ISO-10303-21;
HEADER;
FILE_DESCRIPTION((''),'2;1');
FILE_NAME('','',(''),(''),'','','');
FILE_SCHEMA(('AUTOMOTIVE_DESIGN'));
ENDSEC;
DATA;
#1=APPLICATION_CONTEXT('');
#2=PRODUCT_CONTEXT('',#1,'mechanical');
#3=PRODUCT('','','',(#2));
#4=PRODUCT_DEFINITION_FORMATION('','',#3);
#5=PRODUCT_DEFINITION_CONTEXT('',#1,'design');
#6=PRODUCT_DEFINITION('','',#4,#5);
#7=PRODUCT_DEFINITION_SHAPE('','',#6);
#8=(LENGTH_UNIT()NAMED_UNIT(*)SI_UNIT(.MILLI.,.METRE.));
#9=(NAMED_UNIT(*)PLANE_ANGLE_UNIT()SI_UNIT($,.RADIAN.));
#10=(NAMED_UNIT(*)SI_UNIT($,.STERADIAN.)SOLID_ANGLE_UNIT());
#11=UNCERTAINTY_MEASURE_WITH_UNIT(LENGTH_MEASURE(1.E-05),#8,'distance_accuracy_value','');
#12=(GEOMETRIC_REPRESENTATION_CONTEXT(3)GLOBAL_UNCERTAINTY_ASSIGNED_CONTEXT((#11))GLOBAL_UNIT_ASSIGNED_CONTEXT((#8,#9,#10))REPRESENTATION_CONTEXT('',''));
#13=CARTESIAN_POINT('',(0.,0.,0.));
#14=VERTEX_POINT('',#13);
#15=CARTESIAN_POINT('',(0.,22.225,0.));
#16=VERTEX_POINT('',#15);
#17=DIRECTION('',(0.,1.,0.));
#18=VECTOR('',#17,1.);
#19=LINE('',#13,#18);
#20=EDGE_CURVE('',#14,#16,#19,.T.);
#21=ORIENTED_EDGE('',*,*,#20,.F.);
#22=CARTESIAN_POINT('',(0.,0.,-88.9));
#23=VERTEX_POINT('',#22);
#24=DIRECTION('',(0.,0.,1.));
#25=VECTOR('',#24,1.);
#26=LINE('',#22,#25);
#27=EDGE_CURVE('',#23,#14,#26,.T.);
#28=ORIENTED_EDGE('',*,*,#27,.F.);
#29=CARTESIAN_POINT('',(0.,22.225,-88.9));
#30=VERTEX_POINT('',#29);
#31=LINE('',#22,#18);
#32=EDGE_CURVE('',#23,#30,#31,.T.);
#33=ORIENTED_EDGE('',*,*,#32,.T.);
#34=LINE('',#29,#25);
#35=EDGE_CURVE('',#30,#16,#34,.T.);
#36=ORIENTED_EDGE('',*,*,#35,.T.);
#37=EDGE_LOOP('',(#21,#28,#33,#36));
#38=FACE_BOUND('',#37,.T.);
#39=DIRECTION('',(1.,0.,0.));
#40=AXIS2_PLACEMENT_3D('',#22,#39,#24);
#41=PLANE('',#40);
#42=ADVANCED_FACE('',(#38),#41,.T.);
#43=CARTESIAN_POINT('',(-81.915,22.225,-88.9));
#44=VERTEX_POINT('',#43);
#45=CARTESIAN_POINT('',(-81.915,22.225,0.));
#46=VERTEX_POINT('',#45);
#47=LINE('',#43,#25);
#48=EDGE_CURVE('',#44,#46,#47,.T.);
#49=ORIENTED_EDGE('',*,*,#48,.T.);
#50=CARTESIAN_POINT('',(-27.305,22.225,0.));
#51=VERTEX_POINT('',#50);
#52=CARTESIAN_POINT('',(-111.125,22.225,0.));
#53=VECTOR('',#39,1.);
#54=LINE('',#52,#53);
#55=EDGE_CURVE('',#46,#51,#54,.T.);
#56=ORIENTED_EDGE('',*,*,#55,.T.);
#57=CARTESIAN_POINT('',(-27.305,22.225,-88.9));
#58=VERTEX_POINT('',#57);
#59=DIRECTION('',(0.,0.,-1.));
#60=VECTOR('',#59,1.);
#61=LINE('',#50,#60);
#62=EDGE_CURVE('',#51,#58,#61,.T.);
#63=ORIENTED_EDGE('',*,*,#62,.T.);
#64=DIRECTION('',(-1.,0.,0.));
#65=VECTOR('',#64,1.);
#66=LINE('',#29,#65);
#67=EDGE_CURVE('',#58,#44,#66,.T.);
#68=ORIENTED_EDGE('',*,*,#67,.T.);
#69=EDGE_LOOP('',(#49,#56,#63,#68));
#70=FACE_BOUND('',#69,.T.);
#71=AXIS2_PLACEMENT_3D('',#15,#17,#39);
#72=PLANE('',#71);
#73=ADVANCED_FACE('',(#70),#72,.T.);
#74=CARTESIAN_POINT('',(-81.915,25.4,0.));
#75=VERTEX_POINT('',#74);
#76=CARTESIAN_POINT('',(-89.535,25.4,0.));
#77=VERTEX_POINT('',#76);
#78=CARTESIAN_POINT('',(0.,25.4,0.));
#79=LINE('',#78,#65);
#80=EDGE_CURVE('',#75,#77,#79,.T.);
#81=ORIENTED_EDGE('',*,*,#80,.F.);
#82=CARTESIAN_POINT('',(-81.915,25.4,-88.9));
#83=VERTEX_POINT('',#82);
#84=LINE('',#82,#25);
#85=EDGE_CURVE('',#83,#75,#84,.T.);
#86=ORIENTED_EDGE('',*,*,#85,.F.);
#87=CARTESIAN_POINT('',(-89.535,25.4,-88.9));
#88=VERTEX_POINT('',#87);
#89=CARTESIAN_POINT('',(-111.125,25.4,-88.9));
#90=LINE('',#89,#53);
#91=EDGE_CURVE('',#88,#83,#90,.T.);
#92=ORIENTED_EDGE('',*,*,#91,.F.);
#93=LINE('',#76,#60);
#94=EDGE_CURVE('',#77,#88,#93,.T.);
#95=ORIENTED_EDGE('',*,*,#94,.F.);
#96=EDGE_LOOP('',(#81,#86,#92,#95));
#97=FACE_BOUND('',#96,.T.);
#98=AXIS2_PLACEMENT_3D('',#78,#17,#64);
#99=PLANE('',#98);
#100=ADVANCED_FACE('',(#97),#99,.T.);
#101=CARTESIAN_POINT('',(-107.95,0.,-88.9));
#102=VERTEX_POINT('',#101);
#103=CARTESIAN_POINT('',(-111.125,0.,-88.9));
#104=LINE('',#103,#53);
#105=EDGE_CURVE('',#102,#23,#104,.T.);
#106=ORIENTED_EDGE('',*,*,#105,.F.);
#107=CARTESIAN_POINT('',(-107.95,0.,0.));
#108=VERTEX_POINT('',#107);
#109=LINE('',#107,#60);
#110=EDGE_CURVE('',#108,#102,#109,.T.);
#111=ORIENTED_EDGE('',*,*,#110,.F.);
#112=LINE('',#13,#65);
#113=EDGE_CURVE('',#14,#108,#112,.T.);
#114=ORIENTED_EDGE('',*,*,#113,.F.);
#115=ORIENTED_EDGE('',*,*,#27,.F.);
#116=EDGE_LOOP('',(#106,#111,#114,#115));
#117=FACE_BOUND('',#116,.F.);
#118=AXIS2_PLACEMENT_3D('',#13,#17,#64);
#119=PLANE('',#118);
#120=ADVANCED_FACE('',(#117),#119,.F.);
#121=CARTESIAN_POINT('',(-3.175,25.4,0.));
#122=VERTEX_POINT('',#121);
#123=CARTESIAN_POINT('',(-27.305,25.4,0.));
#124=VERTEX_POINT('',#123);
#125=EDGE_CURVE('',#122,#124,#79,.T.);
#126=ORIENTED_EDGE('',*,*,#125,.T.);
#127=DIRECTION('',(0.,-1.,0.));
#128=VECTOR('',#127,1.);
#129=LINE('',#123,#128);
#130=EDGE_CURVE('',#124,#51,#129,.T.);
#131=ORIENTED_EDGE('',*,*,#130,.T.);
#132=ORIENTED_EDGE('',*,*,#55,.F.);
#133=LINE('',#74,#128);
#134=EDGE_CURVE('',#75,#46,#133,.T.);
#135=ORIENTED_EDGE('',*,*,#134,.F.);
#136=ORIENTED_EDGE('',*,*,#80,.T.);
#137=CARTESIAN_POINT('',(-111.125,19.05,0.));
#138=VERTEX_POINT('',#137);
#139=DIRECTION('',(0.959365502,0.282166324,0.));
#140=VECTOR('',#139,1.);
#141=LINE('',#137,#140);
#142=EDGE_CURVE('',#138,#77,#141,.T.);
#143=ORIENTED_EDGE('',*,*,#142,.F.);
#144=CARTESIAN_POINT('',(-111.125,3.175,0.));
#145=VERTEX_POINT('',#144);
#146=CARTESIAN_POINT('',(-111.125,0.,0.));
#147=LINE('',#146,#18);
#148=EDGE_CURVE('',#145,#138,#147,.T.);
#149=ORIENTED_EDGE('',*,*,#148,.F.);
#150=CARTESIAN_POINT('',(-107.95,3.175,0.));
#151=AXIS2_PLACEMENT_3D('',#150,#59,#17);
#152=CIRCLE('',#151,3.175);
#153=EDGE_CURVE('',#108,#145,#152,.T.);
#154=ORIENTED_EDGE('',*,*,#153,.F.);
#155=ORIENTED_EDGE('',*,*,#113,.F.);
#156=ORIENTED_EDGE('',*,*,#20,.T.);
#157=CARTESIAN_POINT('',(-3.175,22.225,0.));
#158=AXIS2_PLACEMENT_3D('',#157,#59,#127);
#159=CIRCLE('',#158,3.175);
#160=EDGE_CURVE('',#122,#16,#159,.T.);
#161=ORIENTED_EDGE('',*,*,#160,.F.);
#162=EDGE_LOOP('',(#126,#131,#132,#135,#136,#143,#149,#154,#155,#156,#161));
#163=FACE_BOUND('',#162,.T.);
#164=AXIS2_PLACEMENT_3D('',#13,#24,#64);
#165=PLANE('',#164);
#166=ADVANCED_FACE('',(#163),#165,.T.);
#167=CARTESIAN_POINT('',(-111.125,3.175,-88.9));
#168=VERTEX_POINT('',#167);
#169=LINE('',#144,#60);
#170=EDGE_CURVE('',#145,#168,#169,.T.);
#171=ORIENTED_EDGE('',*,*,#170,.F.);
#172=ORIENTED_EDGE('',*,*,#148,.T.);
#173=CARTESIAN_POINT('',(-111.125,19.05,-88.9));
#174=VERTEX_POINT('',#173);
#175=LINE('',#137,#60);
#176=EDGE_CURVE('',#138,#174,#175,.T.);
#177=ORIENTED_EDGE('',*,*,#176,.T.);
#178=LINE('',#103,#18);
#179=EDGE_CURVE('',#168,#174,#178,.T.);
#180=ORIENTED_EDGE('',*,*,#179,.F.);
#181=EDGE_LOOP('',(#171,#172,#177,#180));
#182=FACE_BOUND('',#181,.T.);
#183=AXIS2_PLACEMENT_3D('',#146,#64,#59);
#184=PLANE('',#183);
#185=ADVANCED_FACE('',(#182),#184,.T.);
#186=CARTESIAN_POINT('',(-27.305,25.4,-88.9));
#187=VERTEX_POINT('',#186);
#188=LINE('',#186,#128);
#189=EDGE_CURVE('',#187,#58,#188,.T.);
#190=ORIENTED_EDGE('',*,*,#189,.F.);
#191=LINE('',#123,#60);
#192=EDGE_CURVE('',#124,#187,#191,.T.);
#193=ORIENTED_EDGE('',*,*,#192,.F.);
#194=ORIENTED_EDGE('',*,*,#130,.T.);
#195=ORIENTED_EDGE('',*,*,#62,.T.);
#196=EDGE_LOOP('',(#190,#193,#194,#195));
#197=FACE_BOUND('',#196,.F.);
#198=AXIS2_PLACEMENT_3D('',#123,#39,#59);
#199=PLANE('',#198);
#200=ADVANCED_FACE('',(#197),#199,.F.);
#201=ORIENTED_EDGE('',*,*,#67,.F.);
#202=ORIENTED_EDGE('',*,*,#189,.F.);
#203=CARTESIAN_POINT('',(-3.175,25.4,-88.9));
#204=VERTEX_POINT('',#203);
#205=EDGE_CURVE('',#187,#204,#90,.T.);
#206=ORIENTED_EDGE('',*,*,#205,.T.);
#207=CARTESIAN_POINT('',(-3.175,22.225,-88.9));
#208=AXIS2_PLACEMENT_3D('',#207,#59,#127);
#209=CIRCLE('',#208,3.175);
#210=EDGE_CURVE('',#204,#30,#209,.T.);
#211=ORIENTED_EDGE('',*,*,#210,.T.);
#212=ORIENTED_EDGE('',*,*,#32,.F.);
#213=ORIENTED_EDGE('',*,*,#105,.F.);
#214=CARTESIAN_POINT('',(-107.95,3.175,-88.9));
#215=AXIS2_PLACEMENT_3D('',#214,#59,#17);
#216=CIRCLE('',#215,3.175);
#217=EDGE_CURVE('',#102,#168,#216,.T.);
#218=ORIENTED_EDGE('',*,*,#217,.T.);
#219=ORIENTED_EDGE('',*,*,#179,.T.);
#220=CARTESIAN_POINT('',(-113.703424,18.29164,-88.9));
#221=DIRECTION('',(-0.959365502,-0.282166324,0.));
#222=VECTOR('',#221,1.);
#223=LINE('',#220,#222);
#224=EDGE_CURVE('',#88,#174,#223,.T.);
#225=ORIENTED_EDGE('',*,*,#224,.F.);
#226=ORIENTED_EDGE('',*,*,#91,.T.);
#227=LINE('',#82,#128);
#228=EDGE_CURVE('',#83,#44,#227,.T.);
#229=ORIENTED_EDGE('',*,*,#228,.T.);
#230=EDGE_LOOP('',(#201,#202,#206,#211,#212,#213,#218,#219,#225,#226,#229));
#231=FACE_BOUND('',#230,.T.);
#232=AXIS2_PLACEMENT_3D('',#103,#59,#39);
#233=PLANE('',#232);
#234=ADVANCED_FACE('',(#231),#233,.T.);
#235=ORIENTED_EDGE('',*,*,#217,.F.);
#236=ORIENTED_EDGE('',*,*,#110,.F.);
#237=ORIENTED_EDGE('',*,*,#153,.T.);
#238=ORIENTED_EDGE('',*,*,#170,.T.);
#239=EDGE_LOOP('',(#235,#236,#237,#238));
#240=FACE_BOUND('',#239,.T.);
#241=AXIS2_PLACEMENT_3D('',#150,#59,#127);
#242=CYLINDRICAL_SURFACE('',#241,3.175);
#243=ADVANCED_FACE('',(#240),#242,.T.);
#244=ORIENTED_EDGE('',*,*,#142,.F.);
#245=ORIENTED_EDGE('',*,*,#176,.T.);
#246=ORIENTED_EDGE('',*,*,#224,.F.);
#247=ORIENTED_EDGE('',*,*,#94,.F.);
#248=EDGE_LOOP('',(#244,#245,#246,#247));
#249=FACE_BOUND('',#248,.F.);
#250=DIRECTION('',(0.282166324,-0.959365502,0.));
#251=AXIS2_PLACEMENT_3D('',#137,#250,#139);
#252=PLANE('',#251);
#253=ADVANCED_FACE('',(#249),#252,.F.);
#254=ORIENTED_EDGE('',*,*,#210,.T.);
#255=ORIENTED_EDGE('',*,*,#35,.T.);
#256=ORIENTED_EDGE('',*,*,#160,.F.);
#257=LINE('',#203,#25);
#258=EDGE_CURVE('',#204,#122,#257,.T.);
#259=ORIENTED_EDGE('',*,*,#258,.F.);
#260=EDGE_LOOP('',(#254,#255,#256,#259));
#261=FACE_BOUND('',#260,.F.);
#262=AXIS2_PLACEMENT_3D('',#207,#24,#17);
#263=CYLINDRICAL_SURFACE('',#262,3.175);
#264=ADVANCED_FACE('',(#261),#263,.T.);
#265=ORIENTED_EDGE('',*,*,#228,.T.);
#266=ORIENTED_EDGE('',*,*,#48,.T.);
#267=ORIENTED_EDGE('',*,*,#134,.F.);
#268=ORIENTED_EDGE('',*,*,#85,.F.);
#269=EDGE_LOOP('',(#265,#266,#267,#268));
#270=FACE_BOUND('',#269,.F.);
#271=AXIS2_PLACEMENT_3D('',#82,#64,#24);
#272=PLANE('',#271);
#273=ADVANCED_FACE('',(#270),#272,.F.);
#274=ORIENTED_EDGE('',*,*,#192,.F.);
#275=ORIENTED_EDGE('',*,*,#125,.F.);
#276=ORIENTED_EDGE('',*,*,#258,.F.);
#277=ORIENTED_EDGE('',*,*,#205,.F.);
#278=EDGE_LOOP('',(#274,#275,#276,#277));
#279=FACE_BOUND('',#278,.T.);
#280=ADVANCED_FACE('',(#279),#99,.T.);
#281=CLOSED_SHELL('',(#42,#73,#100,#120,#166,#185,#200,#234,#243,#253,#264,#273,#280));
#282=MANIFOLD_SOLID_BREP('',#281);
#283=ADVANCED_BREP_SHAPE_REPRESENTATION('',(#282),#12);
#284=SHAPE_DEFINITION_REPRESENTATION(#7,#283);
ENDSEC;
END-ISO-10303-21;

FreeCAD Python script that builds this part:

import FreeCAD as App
import Part
import Sketcher
from FreeCAD import Vector
Q = App.Units.Quantity


def edges_at(feature, points):
    """Names of the edges that pass closest to the given points."""
    edges = feature.Shape.Edges
    near = lambda p: min(range(len(edges)), key=lambda i: edges[i].distToShape(Part.Vertex(*p))[0])
    return sorted({f"Edge{near(p) + 1}" for p in points})

doc = App.newDocument("Part")
body = doc.addObject("PartDesign::Body", "Body")

# Sketch on XZ plane
sketch1 = body.newObject("Sketcher::SketchObject", "Sketch")
sketch1.AttachmentSupport = (doc.getObject("XZ_Plane"), [""])
sketch1.MapMode = "FlatFace"
sketch1.addGeometry([
    Part.LineSegment(Vector(-111.125, 0, 0), Vector(0, 0, 0)),
    Part.LineSegment(Vector(0, 0, 0), Vector(0, -88.9, 0)),
    Part.LineSegment(Vector(0, -88.9, 0), Vector(-111.125, -88.9, 0)),
    Part.LineSegment(Vector(-111.125, -88.9, 0), Vector(-111.125, 0, 0)),
], False)
sketch1.addConstraint([
    Sketcher.Constraint("Coincident", 0, 2, 1, 1),
    Sketcher.Constraint("Coincident", 1, 2, 2, 1),
    Sketcher.Constraint("Coincident", 2, 2, 3, 1),
    Sketcher.Constraint("Coincident", 3, 2, 0, 1),
    Sketcher.Constraint("Horizontal", 0),
    Sketcher.Constraint("Vertical", 1),
    Sketcher.Constraint("Horizontal", 2),
    Sketcher.Constraint("Vertical", 3),
    Sketcher.Constraint("Coincident", 0, 2, -1, 1),
    Sketcher.Constraint("DistanceY", 1, 2, 1, 1, Q("3.5 in")),
    Sketcher.Constraint("DistanceX", 0, 1, 0, 2, Q("4.375 in")),
])
pad1 = body.newObject("PartDesign::Pad", "Pad")
pad1.Profile = sketch1
pad1.Length = Q("1 in")
pad1.Reversed = True

# Sketch on XZ plane
sketch2 = body.newObject("Sketcher::SketchObject", "Sketch001")
sketch2.AttachmentSupport = (doc.getObject("XZ_Plane"), [""])
sketch2.MapMode = "FlatFace"
sketch2.AttachmentOffset = App.Placement(Vector(0, 0, -1 * 25.4), App.Rotation())
sketch2.addGeometry([
    Part.LineSegment(Vector(-27.305, 0, 0), Vector(-27.305, -88.9, 0)),
    Part.LineSegment(Vector(-27.305, -88.9, 0), Vector(-81.915, -88.9, 0)),
    Part.LineSegment(Vector(-81.915, -88.9, 0), Vector(-81.915, 0, 0)),
    Part.LineSegment(Vector(-81.915, 0, 0), Vector(-27.305, 0, 0)),
], False)
sketch2.addConstraint([
    Sketcher.Constraint("Coincident", 0, 2, 1, 1),
    Sketcher.Constraint("Coincident", 1, 2, 2, 1),
    Sketcher.Constraint("Coincident", 2, 2, 3, 1),
    Sketcher.Constraint("Coincident", 3, 2, 0, 1),
    Sketcher.Constraint("Vertical", 0),
    Sketcher.Constraint("Horizontal", 1),
    Sketcher.Constraint("Vertical", 2),
    Sketcher.Constraint("Horizontal", 3),
    Sketcher.Constraint("PointOnObject", 2, 2, -1),
    Sketcher.Constraint("DistanceX", 1, 2, 1, 1, Q("2.15 in")),
    Sketcher.Constraint("DistanceY", 0, 2, 0, 1, Q("3.5 in")),
    Sketcher.Constraint("DistanceX", 0, 2, -1, 1, Q("1.075 in")),
])
pocket1 = body.newObject("PartDesign::Pocket", "Pocket")
pocket1.Profile = sketch2
pocket1.Length = Q("0.125 in")
pocket1.Reversed = True

# Sketch on XY plane
sketch3 = body.newObject("Sketcher::SketchObject", "Sketch002")
sketch3.AttachmentSupport = (doc.getObject("XY_Plane"), [""])
sketch3.MapMode = "FlatFace"
sketch3.addGeometry([
    Part.LineSegment(Vector(-111.125, 25.4, 0), Vector(-111.125, 19.05, 0)),
    Part.LineSegment(Vector(-111.125, 19.05, 0), Vector(-89.535, 25.4, 0)),
    Part.LineSegment(Vector(-89.535, 25.4, 0), Vector(-111.125, 25.4, 0)),
], False)
sketch3.addConstraint([
    Sketcher.Constraint("Coincident", 0, 2, 1, 1),
    Sketcher.Constraint("Coincident", 1, 2, 2, 1),
    Sketcher.Constraint("Coincident", 2, 2, 0, 1),
    Sketcher.Constraint("Vertical", 0),
    Sketcher.Constraint("Horizontal", 2),
    Sketcher.Constraint("DistanceY", 0, 2, 0, 1, Q("0.25 in")),
    Sketcher.Constraint("DistanceY", -1, 1, 1, 2, Q("1 in")),
    Sketcher.Constraint("DistanceX", 2, 2, 2, 1, Q("0.85 in")),
    Sketcher.Constraint("DistanceX", 0, 2, -1, 1, Q("4.375 in")),
])
pocket2 = body.newObject("PartDesign::Pocket", "Pocket001")
pocket2.Profile = sketch3
pocket2.Type = "ThroughAll"
doc.recompute()

fillet = body.newObject("PartDesign::Fillet", "Fillet")
fillet.Base = (pocket2, edges_at(pocket2, [(-111.125, 0, -44.45), (0, 25.4, -44.45)]))
fillet.Radius = Q("0.125 in")

doc.recompute()
